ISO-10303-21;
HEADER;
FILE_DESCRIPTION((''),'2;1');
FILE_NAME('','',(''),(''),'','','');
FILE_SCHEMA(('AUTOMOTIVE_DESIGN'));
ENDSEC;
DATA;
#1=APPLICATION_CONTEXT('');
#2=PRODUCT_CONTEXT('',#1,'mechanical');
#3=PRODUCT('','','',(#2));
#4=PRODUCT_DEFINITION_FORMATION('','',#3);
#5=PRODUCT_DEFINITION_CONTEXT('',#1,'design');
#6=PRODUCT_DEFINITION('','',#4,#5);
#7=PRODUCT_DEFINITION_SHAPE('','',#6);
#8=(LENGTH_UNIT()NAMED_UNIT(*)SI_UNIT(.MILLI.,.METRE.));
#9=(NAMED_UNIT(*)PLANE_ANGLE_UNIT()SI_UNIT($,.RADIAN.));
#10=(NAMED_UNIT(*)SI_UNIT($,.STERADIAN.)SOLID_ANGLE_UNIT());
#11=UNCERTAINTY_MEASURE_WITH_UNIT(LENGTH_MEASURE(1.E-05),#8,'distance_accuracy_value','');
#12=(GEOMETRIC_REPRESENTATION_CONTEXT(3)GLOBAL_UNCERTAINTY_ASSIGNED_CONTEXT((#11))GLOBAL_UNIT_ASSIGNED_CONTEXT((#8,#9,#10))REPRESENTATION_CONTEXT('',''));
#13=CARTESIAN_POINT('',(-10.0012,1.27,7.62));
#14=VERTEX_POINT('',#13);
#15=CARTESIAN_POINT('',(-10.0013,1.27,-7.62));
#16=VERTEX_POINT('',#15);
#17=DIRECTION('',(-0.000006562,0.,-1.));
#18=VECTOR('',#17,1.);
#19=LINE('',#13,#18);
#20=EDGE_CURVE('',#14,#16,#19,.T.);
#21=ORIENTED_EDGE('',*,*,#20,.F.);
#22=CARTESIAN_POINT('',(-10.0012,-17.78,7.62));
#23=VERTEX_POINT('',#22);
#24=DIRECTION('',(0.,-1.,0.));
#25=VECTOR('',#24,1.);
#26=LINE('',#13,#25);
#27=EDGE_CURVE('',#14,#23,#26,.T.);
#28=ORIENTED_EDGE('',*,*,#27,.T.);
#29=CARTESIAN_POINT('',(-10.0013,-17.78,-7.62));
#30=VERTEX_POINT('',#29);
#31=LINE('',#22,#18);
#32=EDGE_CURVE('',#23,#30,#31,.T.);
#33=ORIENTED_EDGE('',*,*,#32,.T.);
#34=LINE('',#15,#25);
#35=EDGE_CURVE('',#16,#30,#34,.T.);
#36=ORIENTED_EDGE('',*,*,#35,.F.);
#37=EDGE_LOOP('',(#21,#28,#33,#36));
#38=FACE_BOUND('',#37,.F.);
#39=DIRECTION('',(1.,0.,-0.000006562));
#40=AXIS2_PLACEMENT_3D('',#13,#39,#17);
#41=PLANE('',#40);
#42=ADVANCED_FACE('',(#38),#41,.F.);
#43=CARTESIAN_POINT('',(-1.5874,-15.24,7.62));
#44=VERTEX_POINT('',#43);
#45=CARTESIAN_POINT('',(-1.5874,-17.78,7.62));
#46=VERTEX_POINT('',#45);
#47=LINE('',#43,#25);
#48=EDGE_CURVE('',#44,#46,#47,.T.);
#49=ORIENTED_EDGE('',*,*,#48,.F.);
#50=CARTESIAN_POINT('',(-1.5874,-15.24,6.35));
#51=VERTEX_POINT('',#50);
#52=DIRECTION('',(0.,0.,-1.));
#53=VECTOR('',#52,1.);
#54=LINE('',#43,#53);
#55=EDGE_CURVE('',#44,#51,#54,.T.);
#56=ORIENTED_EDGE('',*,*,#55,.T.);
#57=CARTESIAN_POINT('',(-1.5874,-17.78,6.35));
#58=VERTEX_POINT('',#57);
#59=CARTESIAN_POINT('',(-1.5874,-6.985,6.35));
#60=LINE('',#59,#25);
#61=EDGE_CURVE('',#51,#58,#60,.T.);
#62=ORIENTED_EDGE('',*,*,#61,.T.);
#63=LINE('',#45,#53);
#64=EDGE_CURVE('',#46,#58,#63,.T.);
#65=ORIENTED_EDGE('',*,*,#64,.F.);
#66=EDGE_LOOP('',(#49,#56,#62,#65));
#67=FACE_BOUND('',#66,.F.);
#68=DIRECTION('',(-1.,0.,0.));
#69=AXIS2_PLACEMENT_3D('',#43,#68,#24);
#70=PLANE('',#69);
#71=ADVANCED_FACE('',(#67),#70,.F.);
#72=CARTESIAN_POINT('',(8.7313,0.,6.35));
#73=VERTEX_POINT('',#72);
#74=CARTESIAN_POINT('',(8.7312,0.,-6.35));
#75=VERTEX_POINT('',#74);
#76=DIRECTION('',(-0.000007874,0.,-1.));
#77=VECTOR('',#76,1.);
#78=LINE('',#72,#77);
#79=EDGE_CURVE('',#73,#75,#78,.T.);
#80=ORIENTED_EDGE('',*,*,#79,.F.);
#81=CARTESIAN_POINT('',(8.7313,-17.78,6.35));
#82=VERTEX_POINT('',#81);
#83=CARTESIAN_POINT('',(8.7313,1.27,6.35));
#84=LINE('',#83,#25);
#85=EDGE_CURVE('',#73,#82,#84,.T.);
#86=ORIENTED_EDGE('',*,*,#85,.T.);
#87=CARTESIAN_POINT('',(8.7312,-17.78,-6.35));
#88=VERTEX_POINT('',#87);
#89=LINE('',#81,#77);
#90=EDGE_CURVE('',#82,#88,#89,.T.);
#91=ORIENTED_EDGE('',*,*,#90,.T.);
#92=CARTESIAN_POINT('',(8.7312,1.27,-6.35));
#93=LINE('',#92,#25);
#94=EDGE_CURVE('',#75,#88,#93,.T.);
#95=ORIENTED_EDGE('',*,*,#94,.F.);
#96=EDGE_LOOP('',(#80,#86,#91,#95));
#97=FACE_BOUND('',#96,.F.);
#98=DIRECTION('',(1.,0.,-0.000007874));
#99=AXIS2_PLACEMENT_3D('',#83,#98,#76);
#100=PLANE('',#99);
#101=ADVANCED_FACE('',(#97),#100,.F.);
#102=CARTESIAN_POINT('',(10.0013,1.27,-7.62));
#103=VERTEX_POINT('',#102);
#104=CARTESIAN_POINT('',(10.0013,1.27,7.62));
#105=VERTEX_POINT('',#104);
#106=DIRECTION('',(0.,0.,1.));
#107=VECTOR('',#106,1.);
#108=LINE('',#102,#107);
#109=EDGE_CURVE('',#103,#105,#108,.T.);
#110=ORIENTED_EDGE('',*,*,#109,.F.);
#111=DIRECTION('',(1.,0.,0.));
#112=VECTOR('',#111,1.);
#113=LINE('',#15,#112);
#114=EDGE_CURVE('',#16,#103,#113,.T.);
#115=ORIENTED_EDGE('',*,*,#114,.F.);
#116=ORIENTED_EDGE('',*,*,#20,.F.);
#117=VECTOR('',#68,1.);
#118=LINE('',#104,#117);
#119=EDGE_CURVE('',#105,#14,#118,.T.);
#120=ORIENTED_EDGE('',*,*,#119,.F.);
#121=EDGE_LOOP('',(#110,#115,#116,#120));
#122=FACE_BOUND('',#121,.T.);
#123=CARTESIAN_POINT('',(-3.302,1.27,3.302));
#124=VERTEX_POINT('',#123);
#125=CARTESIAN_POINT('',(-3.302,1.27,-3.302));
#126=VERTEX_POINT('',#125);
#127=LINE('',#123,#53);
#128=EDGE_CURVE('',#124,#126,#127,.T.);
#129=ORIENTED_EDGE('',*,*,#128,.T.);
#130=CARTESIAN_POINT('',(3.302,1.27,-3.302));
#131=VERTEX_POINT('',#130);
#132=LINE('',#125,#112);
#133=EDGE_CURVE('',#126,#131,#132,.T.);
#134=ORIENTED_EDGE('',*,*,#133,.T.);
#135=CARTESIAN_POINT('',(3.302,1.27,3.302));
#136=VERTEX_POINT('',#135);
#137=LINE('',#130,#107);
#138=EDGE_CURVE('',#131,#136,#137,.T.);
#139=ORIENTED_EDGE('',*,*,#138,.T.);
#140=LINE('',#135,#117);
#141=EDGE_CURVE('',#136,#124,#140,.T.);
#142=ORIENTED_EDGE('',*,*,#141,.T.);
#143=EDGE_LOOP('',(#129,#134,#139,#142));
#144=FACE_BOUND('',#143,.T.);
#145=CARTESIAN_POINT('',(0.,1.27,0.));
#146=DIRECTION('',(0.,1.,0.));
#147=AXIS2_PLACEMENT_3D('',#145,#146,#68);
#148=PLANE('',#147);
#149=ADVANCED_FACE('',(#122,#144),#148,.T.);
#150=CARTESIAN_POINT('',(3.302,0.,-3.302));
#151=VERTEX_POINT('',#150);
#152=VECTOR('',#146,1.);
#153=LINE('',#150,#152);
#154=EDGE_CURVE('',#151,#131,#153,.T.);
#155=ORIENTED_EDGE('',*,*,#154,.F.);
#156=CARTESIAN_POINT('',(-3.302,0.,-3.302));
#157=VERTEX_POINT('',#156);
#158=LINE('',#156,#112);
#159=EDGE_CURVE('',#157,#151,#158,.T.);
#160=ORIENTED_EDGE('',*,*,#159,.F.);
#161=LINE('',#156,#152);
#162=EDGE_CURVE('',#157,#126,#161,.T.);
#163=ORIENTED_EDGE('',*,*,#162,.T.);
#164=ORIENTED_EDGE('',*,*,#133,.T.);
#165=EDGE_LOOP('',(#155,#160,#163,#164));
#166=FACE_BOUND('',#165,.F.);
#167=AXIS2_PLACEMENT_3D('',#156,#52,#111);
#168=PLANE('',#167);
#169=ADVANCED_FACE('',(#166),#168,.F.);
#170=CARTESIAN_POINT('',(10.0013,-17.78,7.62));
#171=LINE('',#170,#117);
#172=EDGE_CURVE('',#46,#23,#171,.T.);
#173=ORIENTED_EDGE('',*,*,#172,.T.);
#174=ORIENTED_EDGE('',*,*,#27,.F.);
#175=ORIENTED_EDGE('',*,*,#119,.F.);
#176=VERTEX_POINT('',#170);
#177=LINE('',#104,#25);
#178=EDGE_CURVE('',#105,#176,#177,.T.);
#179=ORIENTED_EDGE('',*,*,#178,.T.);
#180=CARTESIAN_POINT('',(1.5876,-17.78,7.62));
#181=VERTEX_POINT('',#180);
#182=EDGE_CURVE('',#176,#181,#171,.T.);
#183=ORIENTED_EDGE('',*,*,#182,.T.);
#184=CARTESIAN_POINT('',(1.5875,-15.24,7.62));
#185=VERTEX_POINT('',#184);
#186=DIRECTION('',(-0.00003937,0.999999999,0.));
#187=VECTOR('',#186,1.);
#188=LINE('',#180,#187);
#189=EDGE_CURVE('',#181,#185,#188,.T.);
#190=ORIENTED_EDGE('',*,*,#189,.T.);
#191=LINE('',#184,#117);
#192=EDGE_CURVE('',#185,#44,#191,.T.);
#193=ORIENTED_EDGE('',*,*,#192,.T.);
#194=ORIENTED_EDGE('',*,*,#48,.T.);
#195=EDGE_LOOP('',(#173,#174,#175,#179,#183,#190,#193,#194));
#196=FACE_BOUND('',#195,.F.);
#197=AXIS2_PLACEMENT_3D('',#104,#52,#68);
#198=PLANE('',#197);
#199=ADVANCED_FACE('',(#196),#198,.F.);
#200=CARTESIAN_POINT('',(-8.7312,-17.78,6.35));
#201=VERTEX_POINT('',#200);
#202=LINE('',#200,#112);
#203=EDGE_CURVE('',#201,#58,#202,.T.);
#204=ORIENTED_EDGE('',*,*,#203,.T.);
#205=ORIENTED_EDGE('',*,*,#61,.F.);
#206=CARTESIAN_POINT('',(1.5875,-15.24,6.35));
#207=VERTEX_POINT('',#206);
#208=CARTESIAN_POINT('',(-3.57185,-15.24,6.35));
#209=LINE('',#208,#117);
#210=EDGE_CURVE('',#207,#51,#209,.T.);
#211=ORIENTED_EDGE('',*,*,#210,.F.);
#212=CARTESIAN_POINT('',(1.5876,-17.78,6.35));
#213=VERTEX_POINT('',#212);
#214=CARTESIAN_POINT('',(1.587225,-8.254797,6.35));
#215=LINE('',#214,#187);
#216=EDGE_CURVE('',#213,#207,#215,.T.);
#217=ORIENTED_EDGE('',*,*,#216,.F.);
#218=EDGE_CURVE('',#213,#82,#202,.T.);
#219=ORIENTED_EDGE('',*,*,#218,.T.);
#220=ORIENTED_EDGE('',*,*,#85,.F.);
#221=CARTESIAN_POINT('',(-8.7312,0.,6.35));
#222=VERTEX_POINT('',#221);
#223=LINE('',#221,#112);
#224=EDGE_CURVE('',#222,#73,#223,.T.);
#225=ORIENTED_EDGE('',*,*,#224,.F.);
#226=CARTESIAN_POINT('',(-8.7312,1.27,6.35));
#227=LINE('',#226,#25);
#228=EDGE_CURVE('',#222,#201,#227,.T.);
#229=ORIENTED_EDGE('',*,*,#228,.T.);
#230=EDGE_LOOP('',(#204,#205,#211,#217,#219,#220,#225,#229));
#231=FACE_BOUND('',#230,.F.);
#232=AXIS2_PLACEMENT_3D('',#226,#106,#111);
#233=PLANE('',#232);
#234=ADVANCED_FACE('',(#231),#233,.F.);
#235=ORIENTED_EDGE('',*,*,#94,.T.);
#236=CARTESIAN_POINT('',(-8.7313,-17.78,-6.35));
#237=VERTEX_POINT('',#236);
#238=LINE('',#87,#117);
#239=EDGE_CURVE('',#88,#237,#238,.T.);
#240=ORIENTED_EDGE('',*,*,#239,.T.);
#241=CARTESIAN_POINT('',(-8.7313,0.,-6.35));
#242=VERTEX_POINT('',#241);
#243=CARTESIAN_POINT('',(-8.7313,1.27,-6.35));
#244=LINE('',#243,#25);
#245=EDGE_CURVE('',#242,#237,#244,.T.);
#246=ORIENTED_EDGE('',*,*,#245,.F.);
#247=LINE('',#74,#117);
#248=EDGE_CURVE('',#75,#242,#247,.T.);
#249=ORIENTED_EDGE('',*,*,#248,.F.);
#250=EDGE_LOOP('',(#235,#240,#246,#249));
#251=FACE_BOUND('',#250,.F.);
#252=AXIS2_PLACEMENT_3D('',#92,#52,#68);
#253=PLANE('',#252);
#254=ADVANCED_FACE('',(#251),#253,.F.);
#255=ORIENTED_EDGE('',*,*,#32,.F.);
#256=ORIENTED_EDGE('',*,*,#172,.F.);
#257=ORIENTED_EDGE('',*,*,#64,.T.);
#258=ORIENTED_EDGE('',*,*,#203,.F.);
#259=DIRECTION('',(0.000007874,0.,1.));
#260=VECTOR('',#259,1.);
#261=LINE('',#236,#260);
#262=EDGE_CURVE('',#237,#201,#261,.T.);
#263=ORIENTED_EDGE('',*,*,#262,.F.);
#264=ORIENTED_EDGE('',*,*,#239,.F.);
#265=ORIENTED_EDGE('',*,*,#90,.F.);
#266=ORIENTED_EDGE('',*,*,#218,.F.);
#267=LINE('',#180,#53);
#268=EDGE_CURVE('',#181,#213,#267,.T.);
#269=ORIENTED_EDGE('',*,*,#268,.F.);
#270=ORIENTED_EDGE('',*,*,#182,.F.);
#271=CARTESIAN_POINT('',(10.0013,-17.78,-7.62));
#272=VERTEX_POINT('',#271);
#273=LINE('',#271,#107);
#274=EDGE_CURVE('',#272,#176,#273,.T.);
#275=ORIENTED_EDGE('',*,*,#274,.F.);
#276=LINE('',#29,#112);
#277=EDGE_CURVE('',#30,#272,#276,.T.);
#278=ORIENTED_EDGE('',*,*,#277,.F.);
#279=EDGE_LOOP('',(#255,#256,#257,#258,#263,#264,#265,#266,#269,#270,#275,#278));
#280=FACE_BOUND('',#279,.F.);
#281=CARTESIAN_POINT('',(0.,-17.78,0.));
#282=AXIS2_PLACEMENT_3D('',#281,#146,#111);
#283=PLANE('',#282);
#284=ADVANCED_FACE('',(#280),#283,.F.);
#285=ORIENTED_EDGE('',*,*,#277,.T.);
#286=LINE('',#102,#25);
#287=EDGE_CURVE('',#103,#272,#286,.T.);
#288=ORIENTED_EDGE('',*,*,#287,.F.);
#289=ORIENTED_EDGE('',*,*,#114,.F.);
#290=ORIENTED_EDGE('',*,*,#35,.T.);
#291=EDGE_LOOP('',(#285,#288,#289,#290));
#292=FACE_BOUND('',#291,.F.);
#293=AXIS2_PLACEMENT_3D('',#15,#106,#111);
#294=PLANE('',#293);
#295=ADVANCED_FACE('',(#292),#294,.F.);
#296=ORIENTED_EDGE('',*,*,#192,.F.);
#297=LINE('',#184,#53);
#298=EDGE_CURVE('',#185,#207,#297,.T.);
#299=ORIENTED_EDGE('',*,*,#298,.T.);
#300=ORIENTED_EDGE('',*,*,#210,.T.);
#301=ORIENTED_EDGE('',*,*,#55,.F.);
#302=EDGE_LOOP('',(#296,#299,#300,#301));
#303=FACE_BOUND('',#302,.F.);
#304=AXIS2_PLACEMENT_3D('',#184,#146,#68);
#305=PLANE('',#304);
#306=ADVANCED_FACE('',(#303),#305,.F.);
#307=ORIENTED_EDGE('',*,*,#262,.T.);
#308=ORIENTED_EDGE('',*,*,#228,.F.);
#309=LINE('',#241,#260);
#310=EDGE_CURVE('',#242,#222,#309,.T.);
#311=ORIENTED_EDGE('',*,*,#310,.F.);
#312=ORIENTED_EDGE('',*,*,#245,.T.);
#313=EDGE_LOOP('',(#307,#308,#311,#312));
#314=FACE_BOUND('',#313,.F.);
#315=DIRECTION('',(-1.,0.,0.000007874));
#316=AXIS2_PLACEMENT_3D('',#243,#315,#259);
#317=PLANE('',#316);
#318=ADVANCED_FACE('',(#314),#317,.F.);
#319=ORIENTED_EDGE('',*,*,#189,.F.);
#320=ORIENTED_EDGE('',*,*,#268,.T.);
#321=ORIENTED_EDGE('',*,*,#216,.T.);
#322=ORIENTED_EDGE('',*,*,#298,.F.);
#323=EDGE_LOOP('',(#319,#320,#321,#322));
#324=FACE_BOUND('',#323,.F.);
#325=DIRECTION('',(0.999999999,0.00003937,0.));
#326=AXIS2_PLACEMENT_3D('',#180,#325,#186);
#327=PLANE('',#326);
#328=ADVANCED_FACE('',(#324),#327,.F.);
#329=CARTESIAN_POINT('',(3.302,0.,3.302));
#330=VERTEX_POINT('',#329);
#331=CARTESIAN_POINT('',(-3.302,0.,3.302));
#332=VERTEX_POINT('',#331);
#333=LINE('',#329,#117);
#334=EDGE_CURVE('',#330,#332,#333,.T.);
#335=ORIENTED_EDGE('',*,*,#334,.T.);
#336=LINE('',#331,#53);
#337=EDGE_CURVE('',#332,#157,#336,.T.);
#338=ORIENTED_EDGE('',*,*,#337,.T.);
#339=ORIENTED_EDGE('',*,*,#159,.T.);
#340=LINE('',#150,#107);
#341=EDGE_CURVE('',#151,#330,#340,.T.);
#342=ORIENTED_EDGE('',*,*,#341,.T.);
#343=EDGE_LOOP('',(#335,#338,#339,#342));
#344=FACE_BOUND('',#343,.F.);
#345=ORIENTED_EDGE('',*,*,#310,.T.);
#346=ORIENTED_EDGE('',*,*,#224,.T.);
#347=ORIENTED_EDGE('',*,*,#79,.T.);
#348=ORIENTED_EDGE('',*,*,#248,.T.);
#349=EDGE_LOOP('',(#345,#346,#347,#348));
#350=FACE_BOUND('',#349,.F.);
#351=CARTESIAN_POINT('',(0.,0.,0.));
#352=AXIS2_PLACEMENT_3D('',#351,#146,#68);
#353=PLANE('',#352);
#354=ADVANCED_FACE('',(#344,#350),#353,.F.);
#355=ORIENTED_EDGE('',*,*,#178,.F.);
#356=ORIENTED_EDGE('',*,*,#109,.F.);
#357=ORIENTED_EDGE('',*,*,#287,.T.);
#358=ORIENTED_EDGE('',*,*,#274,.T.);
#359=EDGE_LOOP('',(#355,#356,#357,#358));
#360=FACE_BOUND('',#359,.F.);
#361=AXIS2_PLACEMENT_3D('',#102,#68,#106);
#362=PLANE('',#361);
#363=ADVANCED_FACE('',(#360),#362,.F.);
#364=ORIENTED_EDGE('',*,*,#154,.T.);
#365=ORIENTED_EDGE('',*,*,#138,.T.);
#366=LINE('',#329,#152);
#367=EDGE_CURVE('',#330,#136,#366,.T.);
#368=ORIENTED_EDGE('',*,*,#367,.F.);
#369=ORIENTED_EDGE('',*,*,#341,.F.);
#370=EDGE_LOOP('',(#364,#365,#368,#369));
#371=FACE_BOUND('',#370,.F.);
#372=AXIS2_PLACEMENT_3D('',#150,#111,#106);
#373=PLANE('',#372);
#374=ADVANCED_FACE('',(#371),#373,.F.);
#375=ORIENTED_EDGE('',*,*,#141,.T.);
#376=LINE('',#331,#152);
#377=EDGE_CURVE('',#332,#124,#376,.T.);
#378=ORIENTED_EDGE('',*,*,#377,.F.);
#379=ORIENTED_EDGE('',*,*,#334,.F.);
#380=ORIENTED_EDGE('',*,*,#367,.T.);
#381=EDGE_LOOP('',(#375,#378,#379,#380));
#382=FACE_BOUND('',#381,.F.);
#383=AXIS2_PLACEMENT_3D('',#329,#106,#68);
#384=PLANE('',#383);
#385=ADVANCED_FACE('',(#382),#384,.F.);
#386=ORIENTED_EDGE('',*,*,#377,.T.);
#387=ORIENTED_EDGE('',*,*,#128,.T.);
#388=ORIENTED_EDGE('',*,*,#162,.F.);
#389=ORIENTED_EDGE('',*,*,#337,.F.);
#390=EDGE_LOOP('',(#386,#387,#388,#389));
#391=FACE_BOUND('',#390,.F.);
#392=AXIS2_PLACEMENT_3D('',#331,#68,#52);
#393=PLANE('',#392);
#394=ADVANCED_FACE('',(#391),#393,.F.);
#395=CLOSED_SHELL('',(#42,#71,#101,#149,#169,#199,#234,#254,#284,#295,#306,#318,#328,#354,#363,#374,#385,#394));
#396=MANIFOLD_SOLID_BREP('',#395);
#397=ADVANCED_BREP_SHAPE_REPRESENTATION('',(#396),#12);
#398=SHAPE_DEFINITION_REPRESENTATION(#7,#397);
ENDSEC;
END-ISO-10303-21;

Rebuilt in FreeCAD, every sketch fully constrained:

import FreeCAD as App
import Part
import Sketcher

V = App.Vector
Q = App.Units.Quantity


def add_polygon(sketch, points):
    """Adds a closed chain of lines whose ends are joined by coincident constraints."""
    first, n = sketch.GeometryCount, len(points)
    for a, b in zip(points, points[1:] + points[:1]):
        sketch.addGeometry(Part.LineSegment(App.Vector(*a, 0), App.Vector(*b, 0)), False)
    for i in range(n):
        sketch.addConstraint(Sketcher.Constraint("Coincident", first + i, 2, first + (i + 1) % n, 1))

doc = App.newDocument("Part")
body = doc.addObject("PartDesign::Body", "Body")

sketch1 = body.newObject("Sketcher::SketchObject", "Sketch")
sketch1.AttachmentSupport = (doc.getObject("XZ_Plane"), [""])
sketch1.MapMode = "FlatFace"
add_polygon(sketch1, [(-9, -6), (-9, 6), (9, 6), (9, -6)])
add_polygon(sketch1, [(-3, 3), (-3, -3), (3, -3), (3, 3)])
sketch1.addConstraint([
    Sketcher.Constraint("Vertical", 0),
    Sketcher.Constraint("Horizontal", 1),
    Sketcher.Constraint("Vertical", 2),
    Sketcher.Constraint("Horizontal", 3),
    Sketcher.Constraint("Vertical", 4),
    Sketcher.Constraint("Horizontal", 5),
    Sketcher.Constraint("Vertical", 6),
    Sketcher.Constraint("Horizontal", 7),
    Sketcher.Constraint("Symmetric", 0, 2, 2, 2, -1, 1),
    Sketcher.Constraint("Symmetric", 4, 2, 6, 2, -1, 1),
    Sketcher.Constraint("Equal", 7, 4),
    Sketcher.Constraint("DistanceY", 0, 1, 0, 2, Q("0.5 in")),
    Sketcher.Constraint("DistanceX", 5, 1, 5, 2, Q("0.26 in")),
    Sketcher.Constraint("DistanceX", 1, 1, 1, 2, Q("0.6875 in")),
])
pad1 = body.newObject("PartDesign::Pad", "Pad")
pad1.Profile = sketch1
pad1.Length = Q("0.05 in")
pad1.Reversed = True

sketch2 = body.newObject("Sketcher::SketchObject", "Sketch001")
sketch2.AttachmentSupport = (doc.getObject("XZ_Plane"), [""])
sketch2.MapMode = "FlatFace"
sketch2.AttachmentOffset = App.Placement(V(0, 0, -0.05 * 25.4), App.Rotation())
add_polygon(sketch2, [(-10, -8), (-10, 8), (10, 8), (10, -8)])
add_polygon(sketch2, [(9, -6), (9, 6), (-9, 6), (-9, -6)])
sketch2.addConstraint([
    Sketcher.Constraint("Vertical", 0),
    Sketcher.Constraint("Horizontal", 1),
    Sketcher.Constraint("Vertical", 2),
    Sketcher.Constraint("Horizontal", 3),
    Sketcher.Constraint("Vertical", 4),
    Sketcher.Constraint("Horizontal", 5),
    Sketcher.Constraint("Vertical", 6),
    Sketcher.Constraint("Horizontal", 7),
    Sketcher.Constraint("Symmetric", 0, 2, 2, 2, -1, 1),
    Sketcher.Constraint("Symmetric", 4, 2, 6, 2, -1, 1),
    Sketcher.Constraint("DistanceX", 4, 2, 1, 2, Q("0.05 in")),
    Sketcher.Constraint("DistanceY", 4, 2, 1, 2, Q("0.05 in")),
    Sketcher.Constraint("DistanceY", 0, 1, 0, 2, Q("0.6 in")),
    Sketcher.Constraint("DistanceX", 5, 2, 5, 1, Q("0.6875 in")),
])
pad2 = body.newObject("PartDesign::Pad", "Pad001")
pad2.Profile = sketch2
pad2.Length = Q("0.75 in")

sketch3 = body.newObject("Sketcher::SketchObject", "Sketch002")
sketch3.AttachmentSupport = (doc.getObject("XY_Plane"), [""])
sketch3.MapMode = "FlatFace"
sketch3.AttachmentOffset = App.Placement(V(0, 0, 0.3 * 25.4), App.Rotation())
add_polygon(sketch3, [(-1.6, -15.2), (-1.6, -17.8), (1.6, -17.8), (1.6, -15.2)])
sketch3.addConstraint([
    Sketcher.Constraint("Vertical", 0),
    Sketcher.Constraint("Horizontal", 1),
    Sketcher.Constraint("Vertical", 2),
    Sketcher.Constraint("Horizontal", 3),
    Sketcher.Constraint("DistanceY", 0, 2, 0, 1, Q("0.1 in")),
    Sketcher.Constraint("DistanceX", 1, 1, 1, 2, Q("0.125 in")),
    Sketcher.Constraint("DistanceY", 0, 2, -1, 1, Q("0.7 in")),
    Sketcher.Constraint("DistanceX", 0, 2, -1, 1, Q("0.0625 in")),
])
pocket1 = body.newObject("PartDesign::Pocket", "Pocket")
pocket1.Profile = sketch3
pocket1.Length = Q("0.15 in")

doc.recompute()
